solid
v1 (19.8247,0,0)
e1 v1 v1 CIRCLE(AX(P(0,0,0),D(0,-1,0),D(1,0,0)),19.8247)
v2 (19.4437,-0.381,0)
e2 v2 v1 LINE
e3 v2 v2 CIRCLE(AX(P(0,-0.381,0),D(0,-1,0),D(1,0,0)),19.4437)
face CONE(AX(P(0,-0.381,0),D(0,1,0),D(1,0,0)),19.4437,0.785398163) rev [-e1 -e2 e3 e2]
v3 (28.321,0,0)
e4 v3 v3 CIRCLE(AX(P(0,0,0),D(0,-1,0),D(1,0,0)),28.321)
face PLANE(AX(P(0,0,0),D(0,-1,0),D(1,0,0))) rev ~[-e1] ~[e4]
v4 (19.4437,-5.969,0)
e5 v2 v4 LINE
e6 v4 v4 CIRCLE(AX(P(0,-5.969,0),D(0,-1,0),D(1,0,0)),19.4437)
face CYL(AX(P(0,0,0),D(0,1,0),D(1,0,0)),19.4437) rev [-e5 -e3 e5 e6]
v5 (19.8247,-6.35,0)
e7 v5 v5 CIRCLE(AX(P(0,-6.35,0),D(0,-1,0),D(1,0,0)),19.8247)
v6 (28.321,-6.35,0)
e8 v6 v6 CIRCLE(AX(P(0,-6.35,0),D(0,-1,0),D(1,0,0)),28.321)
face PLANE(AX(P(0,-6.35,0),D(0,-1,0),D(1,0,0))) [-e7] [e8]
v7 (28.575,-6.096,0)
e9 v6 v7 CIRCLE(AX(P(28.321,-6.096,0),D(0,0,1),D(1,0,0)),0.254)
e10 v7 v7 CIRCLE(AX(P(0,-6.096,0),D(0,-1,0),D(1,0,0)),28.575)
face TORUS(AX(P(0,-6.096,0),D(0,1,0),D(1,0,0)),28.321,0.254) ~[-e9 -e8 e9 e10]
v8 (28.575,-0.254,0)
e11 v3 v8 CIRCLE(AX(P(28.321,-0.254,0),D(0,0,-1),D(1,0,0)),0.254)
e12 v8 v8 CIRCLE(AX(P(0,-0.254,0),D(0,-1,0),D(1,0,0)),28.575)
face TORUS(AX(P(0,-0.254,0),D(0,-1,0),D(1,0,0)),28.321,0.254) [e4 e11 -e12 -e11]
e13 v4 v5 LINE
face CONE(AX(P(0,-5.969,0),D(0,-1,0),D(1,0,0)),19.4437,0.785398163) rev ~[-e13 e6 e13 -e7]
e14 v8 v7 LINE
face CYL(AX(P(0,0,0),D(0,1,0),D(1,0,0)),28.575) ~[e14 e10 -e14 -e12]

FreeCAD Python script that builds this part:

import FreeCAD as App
import Part
import Sketcher
Q = App.Units.Quantity


def edges_at(feature, points):
    """Names of the edges that pass closest to the given points."""
    edges = feature.Shape.Edges
    near = lambda p: min(range(len(edges)), key=lambda i: edges[i].distToShape(Part.Vertex(*p))[0])
    return sorted({f"Edge{near(p) + 1}" for p in points})

doc = App.newDocument("Part")
body = doc.addObject("PartDesign::Body", "Body")

# Sketch on XZ plane
sketch1 = doc.addObject("Sketcher::SketchObject", "Sketch")
body.addObject(sketch1)
sketch1.AttachmentSupport = (doc.XZ_Plane, [""])
sketch1.MapMode = "FlatFace"
sketch1.addGeometry([
    Part.Circle(App.Vector(0, 0, 0), App.Vector(0, 0, 1), 28.575),
    Part.Circle(App.Vector(0, 0, 0), App.Vector(0, 0, 1), 19.4437),
], False)
sketch1.addConstraint([
    Sketcher.Constraint("Coincident", 0, 3, -1, 1),
    Sketcher.Constraint("Coincident", 1, 3, -1, 1),
    Sketcher.Constraint("Diameter", 0, Q("2.25 in")),
    Sketcher.Constraint("Diameter", 1, Q("1.531 in")),
])
pad1 = doc.addObject("PartDesign::Pad", "Pad")
body.addObject(pad1)
pad1.Profile = sketch1
pad1.Length = Q("0.25 in")
doc.recompute()

chamfer = doc.addObject("PartDesign::Chamfer", "Chamfer")
body.addObject(chamfer)
chamfer.Base = (pad1, edges_at(pad1, [(-19.444, -6.35, 0), (-19.444, 0, 0)]))
chamfer.Size = Q("0.015 in")
doc.recompute()

fillet = doc.addObject("PartDesign::Fillet", "Fillet")
body.addObject(fillet)
fillet.Base = (chamfer, edges_at(chamfer, [(-28.575, 0, 0), (-28.575, -6.35, 0)]))
fillet.Radius = Q("0.01 in")

doc.recompute()
